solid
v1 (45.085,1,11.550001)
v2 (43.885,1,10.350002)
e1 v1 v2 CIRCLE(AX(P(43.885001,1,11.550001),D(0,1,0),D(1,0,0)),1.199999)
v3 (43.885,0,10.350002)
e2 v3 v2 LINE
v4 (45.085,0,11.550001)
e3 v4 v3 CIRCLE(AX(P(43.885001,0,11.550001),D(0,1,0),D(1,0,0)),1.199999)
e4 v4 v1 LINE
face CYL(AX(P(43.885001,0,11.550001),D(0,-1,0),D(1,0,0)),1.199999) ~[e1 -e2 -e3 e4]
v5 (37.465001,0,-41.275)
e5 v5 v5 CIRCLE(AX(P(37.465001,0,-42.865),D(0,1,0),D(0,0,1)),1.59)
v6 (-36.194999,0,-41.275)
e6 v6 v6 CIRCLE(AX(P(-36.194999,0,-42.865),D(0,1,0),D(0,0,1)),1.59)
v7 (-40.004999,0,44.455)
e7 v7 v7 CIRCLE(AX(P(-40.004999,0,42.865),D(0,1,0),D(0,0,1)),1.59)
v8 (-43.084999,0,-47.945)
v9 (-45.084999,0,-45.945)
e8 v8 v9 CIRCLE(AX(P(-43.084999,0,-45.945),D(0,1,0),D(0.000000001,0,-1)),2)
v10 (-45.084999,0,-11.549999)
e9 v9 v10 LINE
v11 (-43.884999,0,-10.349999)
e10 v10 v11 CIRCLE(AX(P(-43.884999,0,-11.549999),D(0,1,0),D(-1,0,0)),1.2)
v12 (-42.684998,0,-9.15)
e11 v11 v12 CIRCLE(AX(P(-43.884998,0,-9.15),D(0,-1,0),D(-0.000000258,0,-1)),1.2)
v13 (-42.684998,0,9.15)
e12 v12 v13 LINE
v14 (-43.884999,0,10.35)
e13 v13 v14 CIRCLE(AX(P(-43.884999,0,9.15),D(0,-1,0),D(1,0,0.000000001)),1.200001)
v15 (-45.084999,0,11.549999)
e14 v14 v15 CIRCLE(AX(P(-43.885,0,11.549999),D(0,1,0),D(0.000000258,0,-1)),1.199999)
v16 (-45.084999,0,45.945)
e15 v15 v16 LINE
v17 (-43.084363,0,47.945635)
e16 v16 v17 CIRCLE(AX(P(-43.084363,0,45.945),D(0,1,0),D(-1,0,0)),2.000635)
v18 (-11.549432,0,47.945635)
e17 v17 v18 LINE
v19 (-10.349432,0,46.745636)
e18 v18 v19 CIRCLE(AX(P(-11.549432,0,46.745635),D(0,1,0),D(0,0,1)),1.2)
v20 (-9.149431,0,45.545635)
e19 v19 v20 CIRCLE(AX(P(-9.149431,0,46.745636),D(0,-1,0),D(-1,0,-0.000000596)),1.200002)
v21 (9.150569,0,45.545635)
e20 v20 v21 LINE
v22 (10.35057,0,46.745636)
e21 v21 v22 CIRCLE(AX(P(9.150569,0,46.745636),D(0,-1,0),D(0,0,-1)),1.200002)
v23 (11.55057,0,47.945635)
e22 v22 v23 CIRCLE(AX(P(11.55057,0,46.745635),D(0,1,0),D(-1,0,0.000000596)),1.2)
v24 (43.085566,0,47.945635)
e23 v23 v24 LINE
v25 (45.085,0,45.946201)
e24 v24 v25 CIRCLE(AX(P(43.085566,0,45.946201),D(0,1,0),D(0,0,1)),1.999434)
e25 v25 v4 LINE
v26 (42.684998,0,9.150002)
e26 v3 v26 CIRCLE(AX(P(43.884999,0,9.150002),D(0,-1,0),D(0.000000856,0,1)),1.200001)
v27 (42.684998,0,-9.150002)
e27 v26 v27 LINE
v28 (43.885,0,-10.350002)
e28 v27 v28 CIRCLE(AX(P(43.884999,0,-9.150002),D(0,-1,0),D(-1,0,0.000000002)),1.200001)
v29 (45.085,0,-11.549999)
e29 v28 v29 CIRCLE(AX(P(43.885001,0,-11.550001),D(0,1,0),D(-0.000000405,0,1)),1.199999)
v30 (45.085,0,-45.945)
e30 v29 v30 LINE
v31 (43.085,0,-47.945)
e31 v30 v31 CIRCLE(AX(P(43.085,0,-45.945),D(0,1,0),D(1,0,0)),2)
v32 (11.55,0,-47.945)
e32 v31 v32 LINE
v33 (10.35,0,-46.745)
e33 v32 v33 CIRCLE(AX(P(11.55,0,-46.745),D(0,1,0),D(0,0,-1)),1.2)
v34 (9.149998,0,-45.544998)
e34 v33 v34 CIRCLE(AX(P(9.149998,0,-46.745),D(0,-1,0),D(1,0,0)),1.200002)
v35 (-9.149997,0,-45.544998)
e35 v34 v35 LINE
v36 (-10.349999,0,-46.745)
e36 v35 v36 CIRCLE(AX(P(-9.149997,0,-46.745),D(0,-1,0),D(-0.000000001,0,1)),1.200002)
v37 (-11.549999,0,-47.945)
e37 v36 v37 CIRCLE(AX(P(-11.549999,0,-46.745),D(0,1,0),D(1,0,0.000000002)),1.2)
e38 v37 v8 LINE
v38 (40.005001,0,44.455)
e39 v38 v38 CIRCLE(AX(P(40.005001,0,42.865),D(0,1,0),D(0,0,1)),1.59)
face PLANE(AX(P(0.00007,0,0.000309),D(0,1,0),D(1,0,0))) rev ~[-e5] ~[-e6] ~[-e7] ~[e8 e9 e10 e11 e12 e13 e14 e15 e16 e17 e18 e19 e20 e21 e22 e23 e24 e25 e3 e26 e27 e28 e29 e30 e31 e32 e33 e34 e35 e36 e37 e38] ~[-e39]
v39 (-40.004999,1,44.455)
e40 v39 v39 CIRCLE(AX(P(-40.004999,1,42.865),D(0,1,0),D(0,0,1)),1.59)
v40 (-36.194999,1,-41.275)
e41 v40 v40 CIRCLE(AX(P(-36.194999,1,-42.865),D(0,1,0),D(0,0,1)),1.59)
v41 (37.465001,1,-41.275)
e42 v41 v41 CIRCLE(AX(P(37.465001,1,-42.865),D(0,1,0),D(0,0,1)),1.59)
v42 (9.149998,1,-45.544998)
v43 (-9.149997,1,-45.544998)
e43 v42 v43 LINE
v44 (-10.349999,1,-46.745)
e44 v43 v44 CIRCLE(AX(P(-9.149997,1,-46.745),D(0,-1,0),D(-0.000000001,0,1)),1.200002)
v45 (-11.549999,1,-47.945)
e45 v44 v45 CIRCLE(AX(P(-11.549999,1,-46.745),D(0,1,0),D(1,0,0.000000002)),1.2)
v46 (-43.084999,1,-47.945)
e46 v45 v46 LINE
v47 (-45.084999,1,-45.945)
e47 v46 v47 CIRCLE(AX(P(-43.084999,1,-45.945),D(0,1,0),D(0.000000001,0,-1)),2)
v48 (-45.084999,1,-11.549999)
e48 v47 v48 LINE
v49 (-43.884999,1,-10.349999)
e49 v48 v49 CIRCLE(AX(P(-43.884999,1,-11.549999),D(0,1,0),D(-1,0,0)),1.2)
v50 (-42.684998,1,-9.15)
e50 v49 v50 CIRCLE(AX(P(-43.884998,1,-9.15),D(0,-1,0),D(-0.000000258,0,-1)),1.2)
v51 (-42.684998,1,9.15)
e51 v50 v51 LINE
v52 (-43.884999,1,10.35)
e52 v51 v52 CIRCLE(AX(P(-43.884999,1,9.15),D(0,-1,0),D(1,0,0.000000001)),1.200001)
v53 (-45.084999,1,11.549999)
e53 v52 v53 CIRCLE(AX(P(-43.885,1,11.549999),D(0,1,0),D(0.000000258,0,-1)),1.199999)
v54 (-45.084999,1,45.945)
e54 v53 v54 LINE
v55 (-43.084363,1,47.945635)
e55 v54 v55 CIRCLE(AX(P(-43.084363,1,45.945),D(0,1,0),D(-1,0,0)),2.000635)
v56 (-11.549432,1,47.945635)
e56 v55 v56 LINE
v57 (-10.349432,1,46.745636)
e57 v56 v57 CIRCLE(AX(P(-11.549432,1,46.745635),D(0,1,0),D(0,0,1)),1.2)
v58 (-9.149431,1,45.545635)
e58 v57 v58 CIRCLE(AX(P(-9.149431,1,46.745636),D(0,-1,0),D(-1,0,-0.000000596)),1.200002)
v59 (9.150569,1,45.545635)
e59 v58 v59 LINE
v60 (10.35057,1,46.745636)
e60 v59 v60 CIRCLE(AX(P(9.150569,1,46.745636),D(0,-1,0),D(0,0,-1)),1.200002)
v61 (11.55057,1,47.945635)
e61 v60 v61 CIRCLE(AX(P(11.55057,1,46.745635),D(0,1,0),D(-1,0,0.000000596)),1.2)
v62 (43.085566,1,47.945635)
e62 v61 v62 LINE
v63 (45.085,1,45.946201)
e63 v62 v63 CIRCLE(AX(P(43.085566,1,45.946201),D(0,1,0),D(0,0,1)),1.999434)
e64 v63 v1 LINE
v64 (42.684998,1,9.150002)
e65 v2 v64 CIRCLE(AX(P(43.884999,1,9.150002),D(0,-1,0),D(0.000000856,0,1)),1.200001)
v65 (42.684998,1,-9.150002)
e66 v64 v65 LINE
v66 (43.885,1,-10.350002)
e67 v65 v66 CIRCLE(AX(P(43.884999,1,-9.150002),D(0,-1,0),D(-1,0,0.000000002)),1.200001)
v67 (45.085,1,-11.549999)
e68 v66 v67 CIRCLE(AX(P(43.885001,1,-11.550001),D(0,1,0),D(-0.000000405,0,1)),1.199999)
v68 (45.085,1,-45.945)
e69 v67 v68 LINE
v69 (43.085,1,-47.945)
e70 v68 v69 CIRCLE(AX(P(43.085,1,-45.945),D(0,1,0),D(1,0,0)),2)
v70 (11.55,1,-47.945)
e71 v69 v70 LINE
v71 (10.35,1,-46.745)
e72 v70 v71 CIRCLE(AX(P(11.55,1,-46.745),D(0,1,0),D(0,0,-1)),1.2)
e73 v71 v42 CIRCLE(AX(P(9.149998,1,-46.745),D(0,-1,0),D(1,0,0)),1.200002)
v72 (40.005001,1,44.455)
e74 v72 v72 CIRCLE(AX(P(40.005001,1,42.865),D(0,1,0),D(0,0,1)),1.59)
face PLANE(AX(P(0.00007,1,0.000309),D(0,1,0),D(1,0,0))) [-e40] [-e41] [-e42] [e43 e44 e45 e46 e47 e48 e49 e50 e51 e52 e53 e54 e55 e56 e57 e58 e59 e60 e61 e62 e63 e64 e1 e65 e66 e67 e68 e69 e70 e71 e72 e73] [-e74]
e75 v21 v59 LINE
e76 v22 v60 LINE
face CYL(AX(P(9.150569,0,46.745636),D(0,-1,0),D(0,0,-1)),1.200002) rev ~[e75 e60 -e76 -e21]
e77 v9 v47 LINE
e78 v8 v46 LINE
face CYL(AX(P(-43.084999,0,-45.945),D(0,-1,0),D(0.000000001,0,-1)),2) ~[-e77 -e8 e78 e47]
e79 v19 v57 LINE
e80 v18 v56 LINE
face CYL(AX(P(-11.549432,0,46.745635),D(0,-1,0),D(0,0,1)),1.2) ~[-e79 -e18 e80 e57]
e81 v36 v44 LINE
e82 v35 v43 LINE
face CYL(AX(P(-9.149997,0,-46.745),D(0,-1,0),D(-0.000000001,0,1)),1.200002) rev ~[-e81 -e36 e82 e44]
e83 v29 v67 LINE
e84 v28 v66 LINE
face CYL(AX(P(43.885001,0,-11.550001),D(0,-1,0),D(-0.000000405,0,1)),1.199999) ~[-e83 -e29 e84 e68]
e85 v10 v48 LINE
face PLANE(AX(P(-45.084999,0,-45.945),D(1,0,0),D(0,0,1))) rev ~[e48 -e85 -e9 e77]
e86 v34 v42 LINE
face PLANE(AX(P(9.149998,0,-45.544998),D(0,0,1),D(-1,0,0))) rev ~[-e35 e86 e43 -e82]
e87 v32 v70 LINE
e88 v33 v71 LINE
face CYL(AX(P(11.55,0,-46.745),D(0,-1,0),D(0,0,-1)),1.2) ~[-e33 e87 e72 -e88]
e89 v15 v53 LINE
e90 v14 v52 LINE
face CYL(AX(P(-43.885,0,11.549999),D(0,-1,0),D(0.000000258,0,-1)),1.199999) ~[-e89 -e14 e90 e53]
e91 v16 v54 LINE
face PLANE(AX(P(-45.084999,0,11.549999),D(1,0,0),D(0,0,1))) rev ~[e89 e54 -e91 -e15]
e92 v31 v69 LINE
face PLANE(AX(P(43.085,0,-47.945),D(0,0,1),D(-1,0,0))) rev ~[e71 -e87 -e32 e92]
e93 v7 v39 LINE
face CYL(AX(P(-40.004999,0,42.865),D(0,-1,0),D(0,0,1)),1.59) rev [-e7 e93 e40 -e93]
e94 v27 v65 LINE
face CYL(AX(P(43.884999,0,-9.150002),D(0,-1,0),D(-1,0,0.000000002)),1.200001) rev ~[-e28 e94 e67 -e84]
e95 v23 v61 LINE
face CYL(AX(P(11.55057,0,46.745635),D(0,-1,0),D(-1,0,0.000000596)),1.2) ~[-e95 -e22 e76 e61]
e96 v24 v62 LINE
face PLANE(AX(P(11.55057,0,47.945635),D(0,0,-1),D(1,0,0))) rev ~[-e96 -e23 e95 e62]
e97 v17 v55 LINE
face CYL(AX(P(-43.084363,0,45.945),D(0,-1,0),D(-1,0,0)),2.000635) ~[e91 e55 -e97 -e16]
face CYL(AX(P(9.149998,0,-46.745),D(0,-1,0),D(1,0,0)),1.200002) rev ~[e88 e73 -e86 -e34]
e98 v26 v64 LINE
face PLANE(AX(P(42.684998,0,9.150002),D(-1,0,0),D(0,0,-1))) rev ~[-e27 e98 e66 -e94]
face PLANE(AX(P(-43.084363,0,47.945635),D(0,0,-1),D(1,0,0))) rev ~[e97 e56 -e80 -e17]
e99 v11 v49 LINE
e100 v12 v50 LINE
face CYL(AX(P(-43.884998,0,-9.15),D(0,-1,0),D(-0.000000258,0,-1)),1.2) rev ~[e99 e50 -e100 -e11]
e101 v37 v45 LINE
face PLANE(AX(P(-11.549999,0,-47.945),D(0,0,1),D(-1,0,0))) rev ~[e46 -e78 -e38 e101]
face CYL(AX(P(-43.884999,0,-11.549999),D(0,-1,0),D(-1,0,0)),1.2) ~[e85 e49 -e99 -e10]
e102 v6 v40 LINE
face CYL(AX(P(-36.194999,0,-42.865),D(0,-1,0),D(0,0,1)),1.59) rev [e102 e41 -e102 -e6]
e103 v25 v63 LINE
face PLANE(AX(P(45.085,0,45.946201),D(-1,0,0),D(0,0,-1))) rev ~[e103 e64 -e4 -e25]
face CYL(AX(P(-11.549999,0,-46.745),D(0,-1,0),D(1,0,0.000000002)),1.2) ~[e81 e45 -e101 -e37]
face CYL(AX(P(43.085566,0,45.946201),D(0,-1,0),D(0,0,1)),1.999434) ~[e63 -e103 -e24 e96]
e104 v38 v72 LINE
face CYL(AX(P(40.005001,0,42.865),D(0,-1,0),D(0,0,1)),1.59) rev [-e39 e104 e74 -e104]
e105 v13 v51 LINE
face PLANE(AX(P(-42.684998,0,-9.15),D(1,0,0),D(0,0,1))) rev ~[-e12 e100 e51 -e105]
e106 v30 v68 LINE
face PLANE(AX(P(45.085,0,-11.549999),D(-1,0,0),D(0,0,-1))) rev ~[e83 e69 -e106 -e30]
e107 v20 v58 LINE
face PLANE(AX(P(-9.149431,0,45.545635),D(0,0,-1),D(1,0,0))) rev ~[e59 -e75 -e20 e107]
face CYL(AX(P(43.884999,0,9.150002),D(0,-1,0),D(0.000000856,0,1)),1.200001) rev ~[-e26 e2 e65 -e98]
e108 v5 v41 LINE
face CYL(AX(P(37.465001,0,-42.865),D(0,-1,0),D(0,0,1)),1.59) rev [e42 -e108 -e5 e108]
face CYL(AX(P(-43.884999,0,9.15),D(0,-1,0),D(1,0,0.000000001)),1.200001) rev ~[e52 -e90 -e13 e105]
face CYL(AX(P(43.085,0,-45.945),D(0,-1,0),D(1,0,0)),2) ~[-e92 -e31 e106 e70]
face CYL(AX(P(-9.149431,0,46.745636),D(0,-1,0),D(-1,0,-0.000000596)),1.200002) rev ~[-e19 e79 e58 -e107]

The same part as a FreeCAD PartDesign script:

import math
import FreeCAD as App
import Part
import Sketcher
from FreeCAD import Vector
Q = App.Units.Quantity

doc = App.newDocument("Part")
params = doc.addObject("Spreadsheet::Sheet", "Params")
for row, (alias, value) in enumerate([
    ("sketch1_radius", "2 mm"),
    ("sketch1_radius2", "1.2 mm"),
    ("sketch1_diameter", "3.18 mm"),
    ("sketch1_width", "18.299999 mm"),
    ("pad1_length", "1 mm"),
], start=1):
    params.set(f"A{row}", alias)
    params.set(f"B{row}", "=" + value)
    params.setAlias(f"B{row}", alias)

body = doc.addObject("PartDesign::Body", "Body")

# Sketch on XZ plane
sketch1 = body.newObject("Sketcher::SketchObject", "Sketch")
sketch1.AttachmentSupport = (doc.getObject("XZ_Plane"), [""])
sketch1.MapMode = "FlatFace"
sketch1.addGeometry([
    Part.LineSegment(Vector(-45.1, 11.5, 0), Vector(-45.1, 45.9, 0)),  # 0
    Part.ArcOfCircle(Part.Circle(Vector(-43.1, 45.9, 0), Vector(0, 0, 1), 2), math.radians(90), math.radians(180)),  # 1
    Part.LineSegment(Vector(-43.1, 47.9, 0), Vector(-11.5, 47.9, 0)),  # 2
    Part.ArcOfCircle(Part.Circle(Vector(-11.5, 46.7, 0), Vector(0, 0, 1), 1.2), math.radians(0), math.radians(90)),  # 3
    Part.ArcOfCircle(Part.Circle(Vector(-9.1, 46.7, 0), Vector(0, 0, 1), 1.2), math.radians(-180), math.radians(-90)),  # 4
    Part.LineSegment(Vector(-9.1, 45.5, 0), Vector(9.2, 45.5, 0)),  # 5
    Part.ArcOfCircle(Part.Circle(Vector(9.2, 46.7, 0), Vector(0, 0, 1), 1.2), math.radians(-90), math.radians(0)),  # 6
    Part.ArcOfCircle(Part.Circle(Vector(11.6, 46.7, 0), Vector(0, 0, 1), 1.2), math.radians(90), math.radians(180)),  # 7
    Part.LineSegment(Vector(11.6, 47.9, 0), Vector(43.1, 47.9, 0)),  # 8
    Part.ArcOfCircle(Part.Circle(Vector(43.1, 45.9, 0), Vector(0, 0, 1), 2), math.radians(0), math.radians(90)),  # 9
    Part.LineSegment(Vector(45.1, 45.9, 0), Vector(45.1, 11.6, 0)),  # 10
    Part.ArcOfCircle(Part.Circle(Vector(43.9, 11.6, 0), Vector(0, 0, 1), 1.2), math.radians(-90), math.radians(0)),  # 11
    Part.ArcOfCircle(Part.Circle(Vector(43.9, 9.2, 0), Vector(0, 0, 1), 1.2), math.radians(90), math.radians(180)),  # 12
    Part.LineSegment(Vector(42.7, 9.2, 0), Vector(42.7, -9.2, 0)),  # 13
    Part.ArcOfCircle(Part.Circle(Vector(43.9, -9.2, 0), Vector(0, 0, 1), 1.2), math.radians(180), math.radians(270)),  # 14
    Part.ArcOfCircle(Part.Circle(Vector(43.9, -11.6, 0), Vector(0, 0, 1), 1.2), math.radians(0), math.radians(90)),  # 15
    Part.LineSegment(Vector(45.1, -11.5, 0), Vector(45.1, -45.9, 0)),  # 16
    Part.ArcOfCircle(Part.Circle(Vector(43.1, -45.9, 0), Vector(0, 0, 1), 2), math.radians(-90), math.radians(0)),  # 17
    Part.LineSegment(Vector(43.1, -47.9, 0), Vector(11.5, -47.9, 0)),  # 18
    Part.ArcOfCircle(Part.Circle(Vector(11.5, -46.7, 0), Vector(0, 0, 1), 1.2), math.radians(180), math.radians(270)),  # 19
    Part.ArcOfCircle(Part.Circle(Vector(9.1, -46.7, 0), Vector(0, 0, 1), 1.2), math.radians(0), math.radians(90)),  # 20
    Part.LineSegment(Vector(9.1, -45.5, 0), Vector(-9.1, -45.5, 0)),  # 21
    Part.ArcOfCircle(Part.Circle(Vector(-9.1, -46.7, 0), Vector(0, 0, 1), 1.2), math.radians(90), math.radians(180)),  # 22
    Part.ArcOfCircle(Part.Circle(Vector(-11.5, -46.7, 0), Vector(0, 0, 1), 1.2), math.radians(-90), math.radians(0)),  # 23
    Part.LineSegment(Vector(-11.5, -47.9, 0), Vector(-43.1, -47.9, 0)),  # 24
    Part.ArcOfCircle(Part.Circle(Vector(-43.1, -45.9, 0), Vector(0, 0, 1), 2), math.radians(180), math.radians(270)),  # 25
    Part.LineSegment(Vector(-45.1, -45.9, 0), Vector(-45.1, -11.5, 0)),  # 26
    Part.ArcOfCircle(Part.Circle(Vector(-43.9, -11.5, 0), Vector(0, 0, 1), 1.2), math.radians(90), math.radians(180)),  # 27
    Part.ArcOfCircle(Part.Circle(Vector(-43.9, -9.1, 0), Vector(0, 0, 1), 1.2), math.radians(-90), math.radians(0)),  # 28
    Part.LineSegment(Vector(-42.7, -9.1, 0), Vector(-42.7, 9.1, 0)),  # 29
    Part.ArcOfCircle(Part.Circle(Vector(-43.9, 9.1, 0), Vector(0, 0, 1), 1.2), math.radians(0), math.radians(90)),  # 30
    Part.ArcOfCircle(Part.Circle(Vector(-43.9, 11.5, 0), Vector(0, 0, 1), 1.2), math.radians(-180), math.radians(-90)),  # 31
    Part.Circle(Vector(-40, 42.9, 0), Vector(0, 0, 1), 1.6),  # 32
    Part.Circle(Vector(40, 42.9, 0), Vector(0, 0, 1), 1.6),  # 33
    Part.Circle(Vector(-36.2, -42.9, 0), Vector(0, 0, 1), 1.6),  # 34
    Part.Circle(Vector(37.5, -42.9, 0), Vector(0, 0, 1), 1.6),  # 35
], False)
sketch1.addConstraint([
    Sketcher.Constraint("Tangent", 0, 2, 1, 2),
    Sketcher.Constraint("Tangent", 1, 1, 2, 1),
    Sketcher.Constraint("Tangent", 2, 2, 3, 2),
    Sketcher.Constraint("Tangent", 3, 1, 4, 1),
    Sketcher.Constraint("Tangent", 4, 2, 5, 1),
    Sketcher.Constraint("Tangent", 5, 2, 6, 1),
    Sketcher.Constraint("Tangent", 6, 2, 7, 2),
    Sketcher.Constraint("Tangent", 7, 1, 8, 1),
    Sketcher.Constraint("Tangent", 8, 2, 9, 2),
    Sketcher.Constraint("Tangent", 9, 1, 10, 1),
    Sketcher.Constraint("Tangent", 10, 2, 11, 2),
    Sketcher.Constraint("Tangent", 11, 1, 12, 1),
    Sketcher.Constraint("Tangent", 12, 2, 13, 1),
    Sketcher.Constraint("Tangent", 13, 2, 14, 1),
    Sketcher.Constraint("Tangent", 14, 2, 15, 2),
    Sketcher.Constraint("Tangent", 15, 1, 16, 1),
    Sketcher.Constraint("Tangent", 16, 2, 17, 2),
    Sketcher.Constraint("Tangent", 17, 1, 18, 1),
    Sketcher.Constraint("Tangent", 18, 2, 19, 2),
    Sketcher.Constraint("Tangent", 19, 1, 20, 1),
    Sketcher.Constraint("Tangent", 20, 2, 21, 1),
    Sketcher.Constraint("Tangent", 21, 2, 22, 1),
    Sketcher.Constraint("Tangent", 22, 2, 23, 2),
    Sketcher.Constraint("Tangent", 23, 1, 24, 1),
    Sketcher.Constraint("Tangent", 24, 2, 25, 2),
    Sketcher.Constraint("Tangent", 25, 1, 26, 1),
    Sketcher.Constraint("Tangent", 26, 2, 27, 2),
    Sketcher.Constraint("Tangent", 27, 1, 28, 1),
    Sketcher.Constraint("Tangent", 28, 2, 29, 1),
    Sketcher.Constraint("Tangent", 29, 2, 30, 1),
    Sketcher.Constraint("Tangent", 30, 2, 31, 2),
    Sketcher.Constraint("Tangent", 31, 1, 0, 1),
    Sketcher.Constraint("Vertical", 0),
    Sketcher.Constraint("Horizontal", 2),
    Sketcher.Constraint("Horizontal", 5),
    Sketcher.Constraint("Horizontal", 8),
    Sketcher.Constraint("Vertical", 10),
    Sketcher.Constraint("Vertical", 13),
    Sketcher.Constraint("Vertical", 16),
    Sketcher.Constraint("Horizontal", 18),
    Sketcher.Constraint("Horizontal", 21),
    Sketcher.Constraint("Horizontal", 24),
    Sketcher.Constraint("Vertical", 26),
    Sketcher.Constraint("Vertical", 29),
    Sketcher.Constraint("Equal", 3, 4),
    Sketcher.Constraint("Equal", 4, 6),
    Sketcher.Constraint("Equal", 6, 7),
    Sketcher.Constraint("Equal", 7, 11),
    Sketcher.Constraint("Equal", 11, 12),
    Sketcher.Constraint("Equal", 12, 14),
    Sketcher.Constraint("Equal", 14, 15),
    Sketcher.Constraint("Equal", 15, 19),
    Sketcher.Constraint("Equal", 19, 20),
    Sketcher.Constraint("Equal", 20, 22),
    Sketcher.Constraint("Equal", 22, 23),
    Sketcher.Constraint("Equal", 17, 25),
    Sketcher.Constraint("Equal", 23, 27),
    Sketcher.Constraint("Equal", 27, 28),
    Sketcher.Constraint("Equal", 28, 30),
    Sketcher.Constraint("Equal", 30, 31),
    Sketcher.Constraint("Equal", 32, 33),
    Sketcher.Constraint("Equal", 33, 34),
    Sketcher.Constraint("Equal", 34, 35),
    Sketcher.Constraint("Symmetric", 11, 3, 27, 3, -1, 1),
    Sketcher.Constraint("Symmetric", 14, 3, 30, 3, -1, 1),
    Sketcher.Constraint("Symmetric", 0, 2, 16, 2, -1, 1),
    Sketcher.Constraint("Symmetric", 19, 3, 23, 3, -2),
    Sketcher.Constraint("Symmetric", 15, 3, 27, 3, -2),
    Sketcher.Constraint("Symmetric", 32, 3, 33, 3, -2),
    Sketcher.Constraint("Horizontal", 3, 3, 4, 3),
    Sketcher.Constraint("Horizontal", 6, 3, 7, 3),
    Sketcher.Constraint("Horizontal", 19, 3, 20, 3),
    Sketcher.Constraint("Horizontal", 34, 3, 35, 3),
    Sketcher.Constraint("Vertical", 14, 3, 15, 3),
    Sketcher.Constraint("Equal", 5, 29),
    Sketcher.Constraint("Radius", 17, Q("2 mm")),
    Sketcher.Constraint("Radius", 3, Q("1.2 mm")),
    Sketcher.Constraint("Diameter", 32, Q("3.18 mm")),
    Sketcher.Constraint("DistanceX", 5, 1, 5, 2, Q("18.299999 mm")),
    Sketcher.Constraint("DistanceX", 23, 3, 19, 3, Q("23.099998 mm")),
    Sketcher.Constraint("DistanceX", 18, 2, 18, 1, Q("31.535 mm")),
    Sketcher.Constraint("DistanceY", 0, 1, 0, 2, Q("34.395 mm")),
    Sketcher.Constraint("DistanceY", 32, 3, 1, 3, Q("3.08 mm")),
    Sketcher.Constraint("DistanceX", 31, 3, 32, 3, Q("3.880001 mm")),
    Sketcher.Constraint("DistanceX", 25, 3, 34, 3, Q("6.89 mm")),
    Sketcher.Constraint("DistanceY", 25, 3, 34, 3, Q("3.079999 mm")),
    Sketcher.Constraint("DistanceX", 35, 3, 17, 3, Q("5.619998 mm")),
    Sketcher.Constraint("DistanceY", 10, 2, 10, 1, Q("34.3962 mm")),
    Sketcher.Constraint("Radius", 1, Q("2.000635 mm")),
    Sketcher.Constraint("DistanceX", 3, 3, 9, 3, Q("54.634998 mm")),
])
sketch1.setExpression("Constraints[75]", "Params.sketch1_radius")
sketch1.setExpression("Constraints[76]", "Params.sketch1_radius2")
sketch1.setExpression("Constraints[77]", "Params.sketch1_diameter")
sketch1.setExpression("Constraints[78]", "Params.sketch1_width")
pad1 = body.newObject("PartDesign::Pad", "Pad")
pad1.Profile = sketch1
pad1.setExpression("Length", "Params.pad1_length")
pad1.Reversed = True

doc.recompute()
